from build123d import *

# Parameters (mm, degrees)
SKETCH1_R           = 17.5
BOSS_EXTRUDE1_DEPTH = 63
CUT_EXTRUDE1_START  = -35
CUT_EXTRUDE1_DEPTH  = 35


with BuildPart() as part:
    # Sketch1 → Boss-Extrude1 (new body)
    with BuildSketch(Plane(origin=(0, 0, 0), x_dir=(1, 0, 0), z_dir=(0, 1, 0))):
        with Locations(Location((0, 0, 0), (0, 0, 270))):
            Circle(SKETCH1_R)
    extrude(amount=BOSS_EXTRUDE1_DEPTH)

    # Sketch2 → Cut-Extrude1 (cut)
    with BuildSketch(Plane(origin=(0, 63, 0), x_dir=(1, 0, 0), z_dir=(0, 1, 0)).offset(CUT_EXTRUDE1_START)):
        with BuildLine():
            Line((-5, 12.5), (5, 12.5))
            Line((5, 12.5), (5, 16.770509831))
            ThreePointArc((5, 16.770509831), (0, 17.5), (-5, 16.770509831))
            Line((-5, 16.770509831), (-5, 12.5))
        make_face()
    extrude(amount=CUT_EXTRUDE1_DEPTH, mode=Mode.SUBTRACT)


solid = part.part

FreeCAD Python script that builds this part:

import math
import FreeCAD as App
import Part
import Sketcher

doc = App.newDocument("Part")
body = doc.addObject("PartDesign::Body", "Body")

# Sketch on XZ plane
sketch1 = body.newObject("Sketcher::SketchObject", "Sketch")
sketch1.AttachmentSupport = (doc.getObject("XZ_Plane"), [""])
sketch1.MapMode = "FlatFace"
sketch1.addGeometry(Part.Circle(App.Vector(0, 0, 0), App.Vector(0, 0, 1), 18), False)
sketch1.addConstraint([
    Sketcher.Constraint("Coincident", 0, 3, -1, 1),
    Sketcher.Constraint("Diameter", 0, 35.0),
])
pad1 = body.newObject("PartDesign::Pad", "Pad")
pad1.Profile = sketch1
pad1.Length = 63
pad1.Reversed = True

# Sketch on XZ plane
sketch2 = body.newObject("Sketcher::SketchObject", "Sketch001")
sketch2.AttachmentSupport = (doc.getObject("XZ_Plane"), [""])
sketch2.MapMode = "FlatFace"
sketch2.AttachmentOffset = App.Placement(App.Vector(0, 0, -28), App.Rotation())
sketch2.addGeometry([
    Part.LineSegment(App.Vector(-5, -12.5, 0), App.Vector(5, -12.5, 0)),
    Part.LineSegment(App.Vector(5, -12.5, 0), App.Vector(5, -16.8, 0)),
    Part.ArcOfCircle(Part.Circle(App.Vector(0, 0, 0), App.Vector(0, 0, 1), 17.5), math.radians(-107), math.radians(-73)),
    Part.LineSegment(App.Vector(-5, -16.8, 0), App.Vector(-5, -12.5, 0)),
], False)
sketch2.addConstraint([
    Sketcher.Constraint("Coincident", 0, 2, 1, 1),
    Sketcher.Constraint("Coincident", 1, 2, 2, 2),
    Sketcher.Constraint("Coincident", 2, 1, 3, 1),
    Sketcher.Constraint("Coincident", 3, 2, 0, 1),
    Sketcher.Constraint("Horizontal", 0),
    Sketcher.Constraint("Vertical", 1),
    Sketcher.Constraint("Vertical", 3),
    Sketcher.Constraint("Coincident", 2, 3, -1, 1),
    Sketcher.Constraint("Horizontal", 1, 2, 2, 1),
    Sketcher.Constraint("Radius", 2, 17.5),
    Sketcher.Constraint("DistanceX", 0, 1, 0, 2, 10.0),
    Sketcher.Constraint("DistanceY", 0, 2, -1, 1, 12.5),
])
pocket1 = body.newObject("PartDesign::Pocket", "Pocket")
pocket1.Profile = sketch2
pocket1.Length = 35

doc.recompute()
